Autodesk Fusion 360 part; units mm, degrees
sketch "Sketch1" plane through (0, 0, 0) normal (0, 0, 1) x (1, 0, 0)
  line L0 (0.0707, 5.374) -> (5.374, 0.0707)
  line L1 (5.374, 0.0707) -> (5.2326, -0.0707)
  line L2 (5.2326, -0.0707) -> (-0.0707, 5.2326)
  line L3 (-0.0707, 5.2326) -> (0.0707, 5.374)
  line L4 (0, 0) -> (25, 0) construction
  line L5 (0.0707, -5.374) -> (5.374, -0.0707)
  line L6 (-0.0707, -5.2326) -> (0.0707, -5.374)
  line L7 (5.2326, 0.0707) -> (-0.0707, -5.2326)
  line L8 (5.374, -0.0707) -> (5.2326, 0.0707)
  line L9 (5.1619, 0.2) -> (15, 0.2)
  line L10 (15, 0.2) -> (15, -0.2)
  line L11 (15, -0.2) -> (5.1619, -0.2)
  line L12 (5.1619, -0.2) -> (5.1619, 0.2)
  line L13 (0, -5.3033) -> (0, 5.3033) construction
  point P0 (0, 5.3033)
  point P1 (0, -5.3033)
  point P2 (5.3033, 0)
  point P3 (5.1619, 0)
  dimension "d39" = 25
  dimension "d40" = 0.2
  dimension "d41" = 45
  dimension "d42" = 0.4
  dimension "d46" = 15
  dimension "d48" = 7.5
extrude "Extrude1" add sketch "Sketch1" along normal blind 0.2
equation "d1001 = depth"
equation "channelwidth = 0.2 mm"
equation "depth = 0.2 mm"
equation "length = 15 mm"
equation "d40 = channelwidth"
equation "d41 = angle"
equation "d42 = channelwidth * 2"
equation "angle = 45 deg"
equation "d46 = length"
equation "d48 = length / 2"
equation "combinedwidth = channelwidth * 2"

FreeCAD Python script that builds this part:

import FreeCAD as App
import Part
import Sketcher
from FreeCAD import Vector


def add_polygon(sketch, points):
    """Adds a closed chain of lines whose ends are joined by coincident constraints."""
    first, n = sketch.GeometryCount, len(points)
    for a, b in zip(points, points[1:] + points[:1]):
        sketch.addGeometry(Part.LineSegment(App.Vector(*a, 0), App.Vector(*b, 0)), False)
    for i in range(n):
        sketch.addConstraint(Sketcher.Constraint("Coincident", first + i, 2, first + (i + 1) % n, 1))

doc = App.newDocument("Part")
body = doc.addObject("PartDesign::Body", "Body")

# Sketch on XY plane
sketch1 = body.newObject("Sketcher::SketchObject", "Sketch")
sketch1.AttachmentSupport = (doc.getObject("XY_Plane"), [""])
sketch1.MapMode = "FlatFace"
add_polygon(sketch1, [(5.24, 0.2), (0.07, 5.37), (-0.07, 5.23), (5.16, 0), (-0.07, -5.23), (0.07, -5.37), (5.24, -0.2), (15, -0.2), (15, 0.2)])  # lines 0-8
sketch1.addConstraint(Sketcher.Constraint("Horizontal", 6))
sketch1.addConstraint(Sketcher.Constraint("Vertical", 7))
sketch1.addConstraint(Sketcher.Constraint("Horizontal", 8))
sketch1.addConstraint(Sketcher.Constraint("Symmetric", 1, 2, 3, 2, -1))
sketch1.addConstraint(Sketcher.Constraint("Symmetric", 0, 2, 4, 2, -1))
sketch1.addConstraint(Sketcher.Constraint("Symmetric", 5, 2, 8, 2, -1))
sketch1.addConstraint(Sketcher.Constraint("PointOnObject", 2, 2, -1))
sketch1.addConstraint(Sketcher.Constraint("Perpendicular", 0, 1))
sketch1.addConstraint(Sketcher.Constraint("Perpendicular", 1, 2))
sketch1.addConstraint(Sketcher.Constraint("Perpendicular", 2, 3))
sketch1.addConstraint(Sketcher.Constraint("DistanceY", 7, 1, 7, 2, 0.4))
sketch1.addConstraint(Sketcher.Constraint("DistanceX", -1, 1, 6, 2, 15.0))
sketch1.addConstraint(Sketcher.Constraint("Distance", 1, 0.2))
sketch1.addConstraint(Sketcher.Constraint("Distance", 2, 7.4))
sketch1.addConstraint(Sketcher.Constraint("DistanceX", 6, 1, 6, 2, 9.7553))
pad1 = body.newObject("PartDesign::Pad", "Pad")
pad1.Profile = sketch1
pad1.Length = 0.2

doc.recompute()
